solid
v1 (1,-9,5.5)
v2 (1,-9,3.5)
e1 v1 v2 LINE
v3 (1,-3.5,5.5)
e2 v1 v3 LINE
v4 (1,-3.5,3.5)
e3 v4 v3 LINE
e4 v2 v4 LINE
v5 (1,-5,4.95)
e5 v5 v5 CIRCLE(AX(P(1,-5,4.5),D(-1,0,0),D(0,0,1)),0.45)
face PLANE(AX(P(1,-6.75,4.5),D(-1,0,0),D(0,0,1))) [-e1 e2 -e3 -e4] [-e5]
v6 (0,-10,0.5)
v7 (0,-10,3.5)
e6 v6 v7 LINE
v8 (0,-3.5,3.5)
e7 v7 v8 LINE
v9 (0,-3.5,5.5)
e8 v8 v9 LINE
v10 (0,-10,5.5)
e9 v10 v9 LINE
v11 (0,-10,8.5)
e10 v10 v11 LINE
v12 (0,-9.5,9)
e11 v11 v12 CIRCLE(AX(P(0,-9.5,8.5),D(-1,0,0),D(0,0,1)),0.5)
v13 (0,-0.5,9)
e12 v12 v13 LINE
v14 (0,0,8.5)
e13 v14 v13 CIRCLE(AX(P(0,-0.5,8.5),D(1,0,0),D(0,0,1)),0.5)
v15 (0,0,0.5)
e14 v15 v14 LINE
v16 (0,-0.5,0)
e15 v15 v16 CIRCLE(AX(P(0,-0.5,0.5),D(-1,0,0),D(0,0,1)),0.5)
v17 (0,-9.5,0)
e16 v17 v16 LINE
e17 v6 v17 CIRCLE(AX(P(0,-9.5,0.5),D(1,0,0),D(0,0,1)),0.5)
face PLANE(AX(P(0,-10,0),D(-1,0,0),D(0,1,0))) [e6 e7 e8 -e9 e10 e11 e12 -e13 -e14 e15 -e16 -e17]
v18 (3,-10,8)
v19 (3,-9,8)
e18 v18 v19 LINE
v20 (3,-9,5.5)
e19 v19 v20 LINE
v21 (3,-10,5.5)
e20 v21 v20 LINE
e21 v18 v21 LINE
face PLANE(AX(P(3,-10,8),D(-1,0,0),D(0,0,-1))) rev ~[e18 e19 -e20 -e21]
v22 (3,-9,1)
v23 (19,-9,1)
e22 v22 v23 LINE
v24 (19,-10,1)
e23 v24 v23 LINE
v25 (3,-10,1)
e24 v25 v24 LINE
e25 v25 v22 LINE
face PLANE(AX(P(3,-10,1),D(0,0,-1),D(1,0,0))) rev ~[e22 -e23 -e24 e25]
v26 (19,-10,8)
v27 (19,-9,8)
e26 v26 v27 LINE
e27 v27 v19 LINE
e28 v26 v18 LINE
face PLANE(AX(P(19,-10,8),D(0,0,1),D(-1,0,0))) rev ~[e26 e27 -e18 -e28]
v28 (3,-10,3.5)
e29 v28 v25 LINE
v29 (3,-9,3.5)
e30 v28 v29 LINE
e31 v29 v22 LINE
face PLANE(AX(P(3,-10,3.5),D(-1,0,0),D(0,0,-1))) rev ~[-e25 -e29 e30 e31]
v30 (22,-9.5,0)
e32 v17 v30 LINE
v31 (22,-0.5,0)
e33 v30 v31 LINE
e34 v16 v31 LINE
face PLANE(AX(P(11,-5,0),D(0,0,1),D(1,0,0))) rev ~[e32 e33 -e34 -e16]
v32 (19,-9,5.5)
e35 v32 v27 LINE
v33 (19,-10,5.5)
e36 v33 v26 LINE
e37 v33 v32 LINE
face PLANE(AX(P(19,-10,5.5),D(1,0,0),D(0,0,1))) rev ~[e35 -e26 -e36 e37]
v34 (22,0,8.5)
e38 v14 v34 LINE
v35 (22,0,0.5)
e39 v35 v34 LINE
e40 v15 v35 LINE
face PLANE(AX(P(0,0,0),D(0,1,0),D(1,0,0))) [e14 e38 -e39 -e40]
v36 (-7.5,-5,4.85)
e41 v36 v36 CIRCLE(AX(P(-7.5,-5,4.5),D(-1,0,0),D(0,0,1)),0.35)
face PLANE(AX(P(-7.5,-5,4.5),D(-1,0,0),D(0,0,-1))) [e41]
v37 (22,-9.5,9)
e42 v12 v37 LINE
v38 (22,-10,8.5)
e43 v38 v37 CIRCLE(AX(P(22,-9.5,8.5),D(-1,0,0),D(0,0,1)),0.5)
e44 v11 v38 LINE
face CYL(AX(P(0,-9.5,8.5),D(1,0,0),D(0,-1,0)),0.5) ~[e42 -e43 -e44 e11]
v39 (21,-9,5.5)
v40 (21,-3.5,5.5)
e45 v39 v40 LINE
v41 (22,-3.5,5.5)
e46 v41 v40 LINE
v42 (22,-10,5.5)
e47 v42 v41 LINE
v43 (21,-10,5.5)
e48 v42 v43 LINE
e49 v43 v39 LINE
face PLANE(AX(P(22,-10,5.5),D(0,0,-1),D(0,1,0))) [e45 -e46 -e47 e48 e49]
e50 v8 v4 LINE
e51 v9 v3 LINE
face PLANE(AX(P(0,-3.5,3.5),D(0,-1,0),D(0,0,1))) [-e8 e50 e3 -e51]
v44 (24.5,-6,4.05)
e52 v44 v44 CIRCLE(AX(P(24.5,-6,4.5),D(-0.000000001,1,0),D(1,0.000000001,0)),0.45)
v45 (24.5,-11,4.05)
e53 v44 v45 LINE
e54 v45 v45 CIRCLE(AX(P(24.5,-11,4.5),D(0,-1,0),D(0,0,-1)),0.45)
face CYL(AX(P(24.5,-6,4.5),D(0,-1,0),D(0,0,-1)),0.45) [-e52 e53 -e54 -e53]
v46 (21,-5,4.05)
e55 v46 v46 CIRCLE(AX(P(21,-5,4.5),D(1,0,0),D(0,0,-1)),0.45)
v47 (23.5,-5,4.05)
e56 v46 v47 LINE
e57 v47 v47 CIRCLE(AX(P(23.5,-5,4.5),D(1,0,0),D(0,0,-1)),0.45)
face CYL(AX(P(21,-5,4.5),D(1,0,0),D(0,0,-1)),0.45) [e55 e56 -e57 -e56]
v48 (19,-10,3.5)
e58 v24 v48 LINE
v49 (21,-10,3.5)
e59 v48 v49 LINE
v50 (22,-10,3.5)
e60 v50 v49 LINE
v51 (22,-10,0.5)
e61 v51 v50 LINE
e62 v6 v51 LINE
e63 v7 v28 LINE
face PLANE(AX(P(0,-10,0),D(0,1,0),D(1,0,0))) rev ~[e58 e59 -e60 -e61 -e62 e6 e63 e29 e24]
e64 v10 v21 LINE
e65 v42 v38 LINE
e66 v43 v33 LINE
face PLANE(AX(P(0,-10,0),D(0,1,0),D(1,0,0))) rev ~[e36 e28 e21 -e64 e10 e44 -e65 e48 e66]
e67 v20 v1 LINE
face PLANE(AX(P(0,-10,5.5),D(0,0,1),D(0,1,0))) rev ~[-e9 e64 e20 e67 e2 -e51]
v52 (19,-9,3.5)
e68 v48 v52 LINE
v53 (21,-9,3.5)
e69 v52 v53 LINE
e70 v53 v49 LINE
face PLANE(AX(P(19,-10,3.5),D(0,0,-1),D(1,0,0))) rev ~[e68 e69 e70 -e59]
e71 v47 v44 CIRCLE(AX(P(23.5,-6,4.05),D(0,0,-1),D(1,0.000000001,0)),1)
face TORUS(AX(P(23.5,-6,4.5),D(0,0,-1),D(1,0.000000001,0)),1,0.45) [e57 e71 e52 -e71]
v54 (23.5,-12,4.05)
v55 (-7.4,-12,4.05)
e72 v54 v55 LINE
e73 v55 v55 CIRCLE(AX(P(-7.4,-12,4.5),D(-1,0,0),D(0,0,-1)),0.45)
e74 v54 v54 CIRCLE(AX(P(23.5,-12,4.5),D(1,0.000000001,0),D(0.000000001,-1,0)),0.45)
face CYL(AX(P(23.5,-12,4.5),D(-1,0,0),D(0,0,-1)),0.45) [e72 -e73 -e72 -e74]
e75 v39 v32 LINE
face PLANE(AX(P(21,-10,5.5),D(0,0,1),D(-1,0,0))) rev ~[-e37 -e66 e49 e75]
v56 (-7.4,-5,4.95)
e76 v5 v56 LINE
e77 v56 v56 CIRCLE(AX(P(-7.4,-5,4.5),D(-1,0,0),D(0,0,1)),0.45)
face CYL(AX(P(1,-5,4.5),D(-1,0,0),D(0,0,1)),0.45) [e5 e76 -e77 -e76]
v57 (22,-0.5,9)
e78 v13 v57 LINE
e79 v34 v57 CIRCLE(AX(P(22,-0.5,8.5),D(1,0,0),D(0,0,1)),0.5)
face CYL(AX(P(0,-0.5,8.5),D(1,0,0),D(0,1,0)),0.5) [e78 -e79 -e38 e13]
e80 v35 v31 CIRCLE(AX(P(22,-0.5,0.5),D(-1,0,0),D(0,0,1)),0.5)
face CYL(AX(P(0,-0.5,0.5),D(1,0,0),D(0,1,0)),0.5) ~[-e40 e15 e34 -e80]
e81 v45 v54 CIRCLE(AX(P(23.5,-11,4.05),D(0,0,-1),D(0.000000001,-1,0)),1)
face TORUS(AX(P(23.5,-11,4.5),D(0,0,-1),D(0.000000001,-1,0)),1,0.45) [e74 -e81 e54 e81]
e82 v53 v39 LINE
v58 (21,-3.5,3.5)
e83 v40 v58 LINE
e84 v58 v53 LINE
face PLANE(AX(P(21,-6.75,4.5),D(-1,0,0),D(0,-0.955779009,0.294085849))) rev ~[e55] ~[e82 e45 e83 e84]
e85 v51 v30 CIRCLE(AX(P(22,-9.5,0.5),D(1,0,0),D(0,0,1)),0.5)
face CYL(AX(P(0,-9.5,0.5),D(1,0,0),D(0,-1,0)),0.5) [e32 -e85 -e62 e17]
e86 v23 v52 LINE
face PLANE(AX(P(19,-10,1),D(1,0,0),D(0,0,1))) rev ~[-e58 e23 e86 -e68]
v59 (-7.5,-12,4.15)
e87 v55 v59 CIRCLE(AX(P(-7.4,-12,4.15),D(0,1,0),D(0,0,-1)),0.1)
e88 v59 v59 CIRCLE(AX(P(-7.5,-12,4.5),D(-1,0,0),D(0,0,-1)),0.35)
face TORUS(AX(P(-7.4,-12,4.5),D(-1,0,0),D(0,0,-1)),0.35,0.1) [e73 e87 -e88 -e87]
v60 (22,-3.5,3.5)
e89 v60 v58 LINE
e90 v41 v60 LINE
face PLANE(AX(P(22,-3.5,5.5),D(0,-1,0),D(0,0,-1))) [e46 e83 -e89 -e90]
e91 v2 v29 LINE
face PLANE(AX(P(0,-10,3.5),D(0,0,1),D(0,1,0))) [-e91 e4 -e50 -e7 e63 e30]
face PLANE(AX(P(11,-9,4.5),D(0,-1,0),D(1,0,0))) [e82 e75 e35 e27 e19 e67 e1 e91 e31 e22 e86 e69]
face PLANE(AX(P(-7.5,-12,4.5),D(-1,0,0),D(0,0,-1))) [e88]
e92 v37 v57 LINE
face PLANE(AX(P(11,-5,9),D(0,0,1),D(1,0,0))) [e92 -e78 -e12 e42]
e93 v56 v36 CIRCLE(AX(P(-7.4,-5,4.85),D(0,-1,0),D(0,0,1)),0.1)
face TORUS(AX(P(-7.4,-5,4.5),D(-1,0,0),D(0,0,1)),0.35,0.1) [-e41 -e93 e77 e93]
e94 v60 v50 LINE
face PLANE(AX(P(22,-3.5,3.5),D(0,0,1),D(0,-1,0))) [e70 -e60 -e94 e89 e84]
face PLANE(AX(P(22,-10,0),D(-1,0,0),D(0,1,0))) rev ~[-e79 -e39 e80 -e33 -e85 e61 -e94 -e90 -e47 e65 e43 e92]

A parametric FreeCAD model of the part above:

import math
import FreeCAD as App
import Part
import Sketcher
Q = App.Units.Quantity


def edges_at(feature, points):
    """Names of the edges that pass closest to the given points."""
    edges = feature.Shape.Edges
    near = lambda p: min(range(len(edges)), key=lambda i: edges[i].distToShape(Part.Vertex(*p))[0])
    return sorted({f"Edge{near(p) + 1}" for p in points})


def add_polygon(sketch, points):
    """Adds a closed chain of lines whose ends are joined by coincident constraints."""
    first, n = sketch.GeometryCount, len(points)
    for a, b in zip(points, points[1:] + points[:1]):
        sketch.addGeometry(Part.LineSegment(App.Vector(*a, 0), App.Vector(*b, 0)), False)
    for i in range(n):
        sketch.addConstraint(Sketcher.Constraint("Coincident", first + i, 2, first + (i + 1) % n, 1))

doc = App.newDocument("Part")
body = doc.addObject("PartDesign::Body", "Body")

# Sketch on XY plane
sketch1 = doc.addObject("Sketcher::SketchObject", "Sketch")
body.addObject(sketch1)
sketch1.AttachmentSupport = (doc.XY_Plane, [""])
sketch1.MapMode = "FlatFace"
add_polygon(sketch1, [(0, 0), (0, -10), (22, -10), (22, 0)])  # lines 0-3
sketch1.addConstraint([
    Sketcher.Constraint("Vertical", 0),
    Sketcher.Constraint("Horizontal", 1),
    Sketcher.Constraint("Vertical", 2),
    Sketcher.Constraint("Horizontal", 3),
    Sketcher.Constraint("Coincident", 3, 2, -1, 1),
    Sketcher.Constraint("DistanceX", 1, 1, 1, 2, Q("22 mm")),
    Sketcher.Constraint("DistanceY", 0, 2, 0, 1, Q("10 mm")),
])
pad1 = doc.addObject("PartDesign::Pad", "Pad")
body.addObject(pad1)
pad1.Profile = sketch1
pad1.Length = 9
doc.recompute()

fillet = doc.addObject("PartDesign::Fillet", "Fillet")
body.addObject(fillet)
fillet.Base = (pad1, edges_at(pad1, [
    (11, 0, 9),
    (11, 0, 0),
    (11, -10, 0),
    (11, -10, 9),
]))
fillet.Radius = 0.5

# Sketch on YZ plane
sketch2 = doc.addObject("Sketcher::SketchObject", "Sketch001")
body.addObject(sketch2)
sketch2.AttachmentSupport = (doc.YZ_Plane, [""])
sketch2.MapMode = "FlatFace"
sketch2.AttachmentOffset = App.Placement(App.Vector(0, 0, 22), App.Rotation())
add_polygon(sketch2, [(-3.5, 5.5), (-10, 5.5), (-10, 3.5), (-3.5, 3.5)])  # lines 0-3
sketch2.addConstraint([
    Sketcher.Constraint("Horizontal", 0),
    Sketcher.Constraint("Vertical", 1),
    Sketcher.Constraint("Horizontal", 2),
    Sketcher.Constraint("Vertical", 3),
    Sketcher.Constraint("DistanceY", 1, 2, 1, 1, Q("2 mm")),
    Sketcher.Constraint("DistanceX", 0, 2, 0, 1, Q("6.5 mm")),
    Sketcher.Constraint("DistanceX", 0, 2, -1, 1, Q("10 mm")),
    Sketcher.Constraint("DistanceY", -1, 1, 0, 2, Q("5.5 mm")),
])
pocket1 = doc.addObject("PartDesign::Pocket", "Pocket")
body.addObject(pocket1)
pocket1.Profile = sketch2
pocket1.Length = 1

# Sketch on YZ plane
sketch3 = doc.addObject("Sketcher::SketchObject", "Sketch002")
body.addObject(sketch3)
sketch3.AttachmentSupport = (doc.YZ_Plane, [""])
sketch3.MapMode = "FlatFace"
add_polygon(sketch3, [(-3.5, 3.5), (-10, 3.5), (-10, 5.5), (-3.5, 5.5)])  # lines 0-3
sketch3.addConstraint([
    Sketcher.Constraint("Horizontal", 0),
    Sketcher.Constraint("Vertical", 1),
    Sketcher.Constraint("Horizontal", 2),
    Sketcher.Constraint("Vertical", 3),
    Sketcher.Constraint("DistanceY", 1, 1, 1, 2, Q("2 mm")),
    Sketcher.Constraint("DistanceX", 0, 2, 0, 1, Q("6.5 mm")),
    Sketcher.Constraint("DistanceX", 0, 2, -1, 1, Q("10 mm")),
    Sketcher.Constraint("DistanceY", -1, 1, 0, 2, Q("3.5 mm")),
])
pocket2 = doc.addObject("PartDesign::Pocket", "Pocket001")
body.addObject(pocket2)
pocket2.Profile = sketch3
pocket2.Length = 1
pocket2.Reversed = True

# Sketch on XZ plane
sketch4 = doc.addObject("Sketcher::SketchObject", "Sketch003")
body.addObject(sketch4)
sketch4.AttachmentSupport = (doc.XZ_Plane, [""])
sketch4.MapMode = "FlatFace"
sketch4.AttachmentOffset = App.Placement(App.Vector(0, 0, 10), App.Rotation())
add_polygon(sketch4, [(1, 5.5), (1, 3.5), (3, 3.5), (3, 1), (19, 1), (19, 3.5), (21, 3.5), (21, 5.5), (19, 5.5), (19, 8), (3, 8), (3, 5.5)])  # lines 0-11
sketch4.addConstraint([
    Sketcher.Constraint("Vertical", 0),
    Sketcher.Constraint("Horizontal", 1),
    Sketcher.Constraint("Vertical", 2),
    Sketcher.Constraint("Horizontal", 3),
    Sketcher.Constraint("Vertical", 4),
    Sketcher.Constraint("Horizontal", 5),
    Sketcher.Constraint("Vertical", 6),
    Sketcher.Constraint("Horizontal", 7),
    Sketcher.Constraint("Vertical", 8),
    Sketcher.Constraint("Horizontal", 9),
    Sketcher.Constraint("Vertical", 10),
    Sketcher.Constraint("Horizontal", 11),
    Sketcher.Constraint("Horizontal", 1, 2, 4, 2),
    Sketcher.Constraint("Horizontal", 7, 2, 10, 2),
    Sketcher.Constraint("Vertical", 4, 2, 7, 2),
    Sketcher.Constraint("Vertical", 2, 2, 9, 2),
    Sketcher.Constraint("Equal", 1, 5),
    Sketcher.Constraint("Equal", 11, 0),
    Sketcher.Constraint("Equal", 4, 8),
    Sketcher.Constraint("DistanceX", 1, 1, 1, 2, Q("2 mm")),
    Sketcher.Constraint("DistanceX", 3, 1, 3, 2, Q("16 mm")),
    Sketcher.Constraint("DistanceY", 2, 2, 2, 1, Q("2.5 mm")),
    Sketcher.Constraint("DistanceX", -1, 1, 0, 2, Q("1 mm")),
    Sketcher.Constraint("DistanceY", -1, 1, 2, 2, Q("1 mm")),
])
pocket3 = doc.addObject("PartDesign::Pocket", "Pocket002")
body.addObject(pocket3)
pocket3.Profile = sketch4
pocket3.Length = 1

# Sketch on YZ plane
sketch5 = doc.addObject("Sketcher::SketchObject", "Sketch004")
body.addObject(sketch5)
sketch5.AttachmentSupport = (doc.YZ_Plane, [""])
sketch5.MapMode = "FlatFace"
sketch5.AttachmentOffset = App.Placement(App.Vector(0, 0, 21), App.Rotation())
sketch5.addGeometry(Part.Circle(App.Vector(-5, 4.5, 0), App.Vector(0, 0, 1), 0.45), False)
sketch5.addConstraint([
    Sketcher.Constraint("Diameter", 0, Q("0.9 mm")),
    Sketcher.Constraint("DistanceX", 0, 3, -1, 1, Q("5 mm")),
    Sketcher.Constraint("DistanceY", -1, 1, 0, 3, Q("4.5 mm")),
])

# Sketch on XY plane
sketch6 = doc.addObject("Sketcher::SketchObject", "Sketch005")
body.addObject(sketch6)
sketch6.AttachmentSupport = (doc.XY_Plane, [""])
sketch6.MapMode = "FlatFace"
sketch6.AttachmentOffset = App.Placement(App.Vector(0, 0, 4.5), App.Rotation())
sketch6.addGeometry([
    Part.LineSegment(App.Vector(21, -5, 0), App.Vector(23.5, -5, 0)),  # 0
    Part.ArcOfCircle(Part.Circle(App.Vector(23.5, -6, 0), App.Vector(0, 0, 1), 1), math.radians(0), math.radians(90)),  # 1
    Part.LineSegment(App.Vector(24.5, -6, 0), App.Vector(24.5, -11, 0)),  # 2
    Part.ArcOfCircle(Part.Circle(App.Vector(23.5, -11, 0), App.Vector(0, 0, 1), 1), math.radians(-90), math.radians(0)),  # 3
    Part.LineSegment(App.Vector(23.5, -12, 0), App.Vector(-7.5, -12, 0)),  # 4
], False)
sketch6.addConstraint([
    Sketcher.Constraint("Tangent", 0, 2, 1, 2),
    Sketcher.Constraint("Tangent", 1, 1, 2, 1),
    Sketcher.Constraint("Tangent", 2, 2, 3, 2),
    Sketcher.Constraint("Tangent", 3, 1, 4, 1),
    Sketcher.Constraint("Horizontal", 0),
    Sketcher.Constraint("Vertical", 2),
    Sketcher.Constraint("Horizontal", 4),
    Sketcher.Constraint("Equal", 1, 3),
    Sketcher.Constraint("Radius", 1, Q("1 mm")),
    Sketcher.Constraint("DistanceX", 4, 2, 4, 1, Q("31 mm")),
    Sketcher.Constraint("DistanceY", 2, 2, 2, 1, Q("5 mm")),
    Sketcher.Constraint("DistanceX", 0, 1, 0, 2, Q("2.5 mm")),
    Sketcher.Constraint("DistanceY", 1, 3, -1, 1, Q("6 mm")),
    Sketcher.Constraint("DistanceX", -1, 1, 0, 1, Q("21 mm")),
])
doc.recompute()

additivepipe = doc.addObject("PartDesign::AdditivePipe", "AdditivePipe")
body.addObject(additivepipe)
additivepipe.Profile = sketch5
additivepipe.Spine = (sketch6, ["Edge1", "Edge2", "Edge3", "Edge4", "Edge5"])

# Sketch on YZ plane
sketch7 = doc.addObject("Sketcher::SketchObject", "Sketch006")
body.addObject(sketch7)
sketch7.AttachmentSupport = (doc.YZ_Plane, [""])
sketch7.MapMode = "FlatFace"
sketch7.AttachmentOffset = App.Placement(App.Vector(0, 0, 1), App.Rotation())
sketch7.addGeometry(Part.Circle(App.Vector(-5, 4.5, 0), App.Vector(0, 0, 1), 0.45), False)
sketch7.addConstraint([
    Sketcher.Constraint("Diameter", 0, Q("0.9 mm")),
    Sketcher.Constraint("DistanceX", 0, 3, -1, 1, Q("5 mm")),
    Sketcher.Constraint("DistanceY", -1, 1, 0, 3, Q("4.5 mm")),
])

# Sketch on XY plane
sketch8 = doc.addObject("Sketcher::SketchObject", "Sketch007")
body.addObject(sketch8)
sketch8.AttachmentSupport = (doc.XY_Plane, [""])
sketch8.MapMode = "FlatFace"
sketch8.AttachmentOffset = App.Placement(App.Vector(0, 0, 4.5), App.Rotation())
sketch8.addGeometry(Part.LineSegment(App.Vector(1, -5, 0), App.Vector(-8, -5, 0)), False)
sketch8.addConstraint([
    Sketcher.Constraint("Horizontal", 0),
    Sketcher.Constraint("DistanceX", 0, 2, 0, 1, Q("8.5 mm")),
    Sketcher.Constraint("DistanceX", -1, 1, 0, 1, Q("1 mm")),
    Sketcher.Constraint("DistanceY", 0, 1, -1, 1, Q("5 mm")),
])
doc.recompute()

additivepipe2 = doc.addObject("PartDesign::AdditivePipe", "AdditivePipe001")
body.addObject(additivepipe2)
additivepipe2.Profile = sketch7
additivepipe2.Spine = (sketch8, ["Edge1"])
doc.recompute()

fillet2 = doc.addObject("PartDesign::Fillet", "Fillet001")
body.addObject(fillet2)
fillet2.Base = (additivepipe2, edges_at(additivepipe2, [(-7.5, -12, 4.95), (-7.5, -5, 4.05)]))
fillet2.Radius = 0.1

doc.recompute()
